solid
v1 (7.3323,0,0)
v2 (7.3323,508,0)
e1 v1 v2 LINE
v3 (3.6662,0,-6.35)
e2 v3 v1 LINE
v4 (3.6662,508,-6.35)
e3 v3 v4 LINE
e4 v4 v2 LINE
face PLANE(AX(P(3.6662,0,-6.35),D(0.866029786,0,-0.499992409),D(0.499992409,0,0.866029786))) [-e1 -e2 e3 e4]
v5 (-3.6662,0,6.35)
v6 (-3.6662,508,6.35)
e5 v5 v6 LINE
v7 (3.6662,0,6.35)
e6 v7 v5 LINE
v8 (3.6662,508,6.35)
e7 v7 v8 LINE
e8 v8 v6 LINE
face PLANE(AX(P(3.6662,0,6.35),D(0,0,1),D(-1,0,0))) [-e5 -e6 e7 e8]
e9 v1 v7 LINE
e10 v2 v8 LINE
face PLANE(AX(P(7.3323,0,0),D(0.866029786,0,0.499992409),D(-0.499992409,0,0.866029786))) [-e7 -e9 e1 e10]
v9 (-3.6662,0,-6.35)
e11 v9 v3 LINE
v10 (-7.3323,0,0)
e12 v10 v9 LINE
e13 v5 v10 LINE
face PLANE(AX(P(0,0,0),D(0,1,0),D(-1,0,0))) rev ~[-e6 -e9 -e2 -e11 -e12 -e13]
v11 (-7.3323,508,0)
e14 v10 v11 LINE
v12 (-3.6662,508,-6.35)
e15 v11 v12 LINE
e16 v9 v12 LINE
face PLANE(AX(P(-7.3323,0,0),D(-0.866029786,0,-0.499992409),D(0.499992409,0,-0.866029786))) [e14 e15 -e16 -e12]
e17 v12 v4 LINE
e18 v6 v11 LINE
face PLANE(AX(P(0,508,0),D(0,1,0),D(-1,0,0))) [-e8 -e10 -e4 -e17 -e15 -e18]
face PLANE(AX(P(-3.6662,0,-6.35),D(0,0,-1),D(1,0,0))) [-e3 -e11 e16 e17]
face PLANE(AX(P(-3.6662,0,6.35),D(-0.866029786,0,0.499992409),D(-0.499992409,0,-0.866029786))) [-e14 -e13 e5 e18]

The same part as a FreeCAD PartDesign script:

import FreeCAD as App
import Part
import Sketcher
Q = App.Units.Quantity

doc = App.newDocument("Part")
body = doc.addObject("PartDesign::Body", "Body")

# Sketch on XZ plane
sketch1 = body.newObject("Sketcher::SketchObject", "Sketch")
sketch1.AttachmentSupport = (doc.getObject("XZ_Plane"), [""])
sketch1.MapMode = "FlatFace"
sketch1.addGeometry(Part.LineSegment(App.Vector(-4, -6, 0), App.Vector(-7, 0, 0)), False)
sketch1.addGeometry(Part.LineSegment(App.Vector(-7, 0, 0), App.Vector(-4, 6, 0)), False)
sketch1.addGeometry(Part.LineSegment(App.Vector(-4, 6, 0), App.Vector(4, 6, 0)), False)
sketch1.addGeometry(Part.LineSegment(App.Vector(4, 6, 0), App.Vector(7, 0, 0)), False)
sketch1.addGeometry(Part.LineSegment(App.Vector(7, 0, 0), App.Vector(4, -6, 0)), False)
sketch1.addGeometry(Part.LineSegment(App.Vector(4, -6, 0), App.Vector(-4, -6, 0)), False)
sketch1.addConstraint(Sketcher.Constraint("Coincident", 0, 2, 1, 1))
sketch1.addConstraint(Sketcher.Constraint("Coincident", 1, 2, 2, 1))
sketch1.addConstraint(Sketcher.Constraint("Coincident", 2, 2, 3, 1))
sketch1.addConstraint(Sketcher.Constraint("Coincident", 3, 2, 4, 1))
sketch1.addConstraint(Sketcher.Constraint("Coincident", 4, 2, 5, 1))
sketch1.addConstraint(Sketcher.Constraint("Coincident", 5, 2, 0, 1))
sketch1.addConstraint(Sketcher.Constraint("Horizontal", 2))
sketch1.addConstraint(Sketcher.Constraint("Horizontal", 5))
sketch1.addConstraint(Sketcher.Constraint("Symmetric", 0, 2, 3, 2, -1, 1))
sketch1.addConstraint(Sketcher.Constraint("Symmetric", 1, 2, 4, 2, -1, 1))
sketch1.addConstraint(Sketcher.Constraint("PointOnObject", 0, 2, -1))
sketch1.addConstraint(Sketcher.Constraint("Parallel", 0, 3))
sketch1.addConstraint(Sketcher.Constraint("Vertical", 2, 2, 4, 2))
sketch1.addConstraint(Sketcher.Constraint("DistanceY", 4, 2, 2, 2, Q("0.5 in")))
sketch1.addConstraint(Sketcher.Constraint("Angle", 0, Q("119.9995 deg")))
sketch1.addConstraint(Sketcher.Constraint("DistanceX", 0, 2, 2, 2, Q("0.433 in")))
pad1 = body.newObject("PartDesign::Pad", "Pad")
pad1.Profile = sketch1
pad1.Length = Q("20 in")
pad1.Reversed = True

doc.recompute()
